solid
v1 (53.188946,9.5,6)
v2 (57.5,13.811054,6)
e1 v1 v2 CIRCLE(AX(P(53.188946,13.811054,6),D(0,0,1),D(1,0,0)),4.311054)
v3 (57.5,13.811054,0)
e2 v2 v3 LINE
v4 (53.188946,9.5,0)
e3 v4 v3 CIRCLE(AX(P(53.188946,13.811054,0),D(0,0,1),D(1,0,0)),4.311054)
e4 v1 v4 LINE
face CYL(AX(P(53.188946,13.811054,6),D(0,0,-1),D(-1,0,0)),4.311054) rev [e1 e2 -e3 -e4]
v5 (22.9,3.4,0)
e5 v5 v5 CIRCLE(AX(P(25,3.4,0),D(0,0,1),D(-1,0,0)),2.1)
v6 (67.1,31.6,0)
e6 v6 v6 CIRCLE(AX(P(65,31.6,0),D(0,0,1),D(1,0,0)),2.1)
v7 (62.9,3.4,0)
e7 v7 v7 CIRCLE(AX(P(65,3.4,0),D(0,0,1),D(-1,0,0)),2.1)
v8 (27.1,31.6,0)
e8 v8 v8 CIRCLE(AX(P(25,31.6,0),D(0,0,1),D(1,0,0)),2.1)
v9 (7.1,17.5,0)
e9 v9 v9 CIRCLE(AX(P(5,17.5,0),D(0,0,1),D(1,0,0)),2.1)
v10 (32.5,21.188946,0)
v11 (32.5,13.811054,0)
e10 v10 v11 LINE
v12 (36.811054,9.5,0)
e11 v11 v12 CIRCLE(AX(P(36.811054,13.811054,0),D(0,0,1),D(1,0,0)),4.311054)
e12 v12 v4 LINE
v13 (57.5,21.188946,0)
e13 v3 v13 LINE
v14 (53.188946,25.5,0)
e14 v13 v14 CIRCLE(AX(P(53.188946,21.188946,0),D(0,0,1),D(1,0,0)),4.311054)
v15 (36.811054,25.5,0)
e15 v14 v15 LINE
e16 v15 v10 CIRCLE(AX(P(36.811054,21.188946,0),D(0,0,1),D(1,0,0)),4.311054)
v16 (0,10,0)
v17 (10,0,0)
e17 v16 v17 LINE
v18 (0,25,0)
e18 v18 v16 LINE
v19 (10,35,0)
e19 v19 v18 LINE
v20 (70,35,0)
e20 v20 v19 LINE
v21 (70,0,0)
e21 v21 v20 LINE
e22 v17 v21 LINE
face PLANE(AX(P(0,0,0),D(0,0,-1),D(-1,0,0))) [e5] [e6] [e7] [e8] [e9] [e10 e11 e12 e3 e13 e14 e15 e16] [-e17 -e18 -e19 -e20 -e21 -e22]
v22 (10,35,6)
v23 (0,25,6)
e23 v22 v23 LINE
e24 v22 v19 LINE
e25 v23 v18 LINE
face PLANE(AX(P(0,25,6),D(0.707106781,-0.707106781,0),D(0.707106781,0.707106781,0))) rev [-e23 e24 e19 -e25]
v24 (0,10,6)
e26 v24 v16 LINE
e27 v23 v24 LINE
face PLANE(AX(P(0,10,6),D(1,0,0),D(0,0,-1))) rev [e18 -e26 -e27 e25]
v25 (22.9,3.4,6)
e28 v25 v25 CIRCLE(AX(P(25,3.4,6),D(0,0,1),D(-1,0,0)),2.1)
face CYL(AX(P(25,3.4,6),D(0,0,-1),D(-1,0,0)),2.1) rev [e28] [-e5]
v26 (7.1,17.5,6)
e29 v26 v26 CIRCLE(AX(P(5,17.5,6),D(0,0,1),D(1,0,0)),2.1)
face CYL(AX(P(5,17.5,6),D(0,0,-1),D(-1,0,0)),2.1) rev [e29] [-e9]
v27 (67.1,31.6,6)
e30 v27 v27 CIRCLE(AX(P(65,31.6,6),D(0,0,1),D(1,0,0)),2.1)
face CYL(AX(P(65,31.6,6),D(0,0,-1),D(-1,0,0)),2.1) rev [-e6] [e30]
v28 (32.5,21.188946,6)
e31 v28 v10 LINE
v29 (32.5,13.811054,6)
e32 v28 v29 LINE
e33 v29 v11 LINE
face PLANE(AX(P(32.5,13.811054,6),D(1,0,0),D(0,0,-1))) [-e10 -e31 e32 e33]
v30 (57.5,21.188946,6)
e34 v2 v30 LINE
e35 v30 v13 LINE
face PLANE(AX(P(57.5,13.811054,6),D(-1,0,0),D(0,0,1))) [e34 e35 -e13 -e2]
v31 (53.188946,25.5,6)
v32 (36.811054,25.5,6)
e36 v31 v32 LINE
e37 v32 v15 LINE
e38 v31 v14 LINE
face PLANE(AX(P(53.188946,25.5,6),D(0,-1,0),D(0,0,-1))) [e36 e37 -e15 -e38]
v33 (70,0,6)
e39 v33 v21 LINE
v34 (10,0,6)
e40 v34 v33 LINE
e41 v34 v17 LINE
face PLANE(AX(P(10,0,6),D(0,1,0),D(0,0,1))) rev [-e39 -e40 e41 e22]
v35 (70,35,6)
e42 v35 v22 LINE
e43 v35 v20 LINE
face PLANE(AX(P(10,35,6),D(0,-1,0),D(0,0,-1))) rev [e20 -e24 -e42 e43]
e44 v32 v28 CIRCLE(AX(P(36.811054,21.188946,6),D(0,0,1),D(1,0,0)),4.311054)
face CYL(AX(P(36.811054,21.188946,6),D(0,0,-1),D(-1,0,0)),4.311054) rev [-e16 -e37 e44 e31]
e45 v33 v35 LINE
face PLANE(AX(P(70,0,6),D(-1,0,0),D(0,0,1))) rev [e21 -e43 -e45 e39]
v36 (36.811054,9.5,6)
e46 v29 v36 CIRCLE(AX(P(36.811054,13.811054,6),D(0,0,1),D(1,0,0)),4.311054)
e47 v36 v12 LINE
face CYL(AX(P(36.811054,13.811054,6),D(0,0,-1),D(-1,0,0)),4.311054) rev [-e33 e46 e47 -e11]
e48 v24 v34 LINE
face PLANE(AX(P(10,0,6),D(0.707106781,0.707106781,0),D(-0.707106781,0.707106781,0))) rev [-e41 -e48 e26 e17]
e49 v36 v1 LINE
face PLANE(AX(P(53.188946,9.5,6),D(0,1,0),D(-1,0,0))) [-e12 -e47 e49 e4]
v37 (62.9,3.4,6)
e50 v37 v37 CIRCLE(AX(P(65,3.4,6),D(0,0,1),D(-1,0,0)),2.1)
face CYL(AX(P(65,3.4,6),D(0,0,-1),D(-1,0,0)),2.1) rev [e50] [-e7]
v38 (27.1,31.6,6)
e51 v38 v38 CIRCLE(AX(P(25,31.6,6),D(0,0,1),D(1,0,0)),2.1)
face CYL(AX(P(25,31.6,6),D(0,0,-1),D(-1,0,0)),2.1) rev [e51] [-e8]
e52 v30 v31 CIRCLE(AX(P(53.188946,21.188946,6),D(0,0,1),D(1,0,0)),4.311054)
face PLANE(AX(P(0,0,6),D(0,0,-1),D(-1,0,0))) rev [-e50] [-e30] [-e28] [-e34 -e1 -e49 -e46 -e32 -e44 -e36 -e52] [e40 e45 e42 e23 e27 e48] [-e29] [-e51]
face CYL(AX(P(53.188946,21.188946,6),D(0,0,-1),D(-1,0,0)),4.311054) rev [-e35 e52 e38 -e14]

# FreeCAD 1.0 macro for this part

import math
import FreeCAD as App
import Part
import Sketcher

V = App.Vector
Q = App.Units.Quantity

doc = App.newDocument("Part")
body = doc.addObject("PartDesign::Body", "Body")

# Sketch on XY plane
sketch1 = body.newObject("Sketcher::SketchObject", "Sketch")
sketch1.AttachmentSupport = (doc.getObject("XY_Plane"), [""])
sketch1.MapMode = "FlatFace"
sketch1.addGeometry(Part.LineSegment(V(10, 0, 0), V(70, 0, 0)), False)
sketch1.addGeometry(Part.LineSegment(V(70, 0, 0), V(70, 35, 0)), False)
sketch1.addGeometry(Part.LineSegment(V(70, 35, 0), V(10, 35, 0)), False)
sketch1.addGeometry(Part.LineSegment(V(10, 35, 0), V(0, 25, 0)), False)
sketch1.addGeometry(Part.LineSegment(V(0, 25, 0), V(0, 10, 0)), False)
sketch1.addGeometry(Part.LineSegment(V(0, 10, 0), V(10, 0, 0)), False)
sketch1.addGeometry(Part.Circle(V(25, 3.4, 0), V(0, 0, 1), 2.1), False)
sketch1.addGeometry(Part.Circle(V(65, 3.4, 0), V(0, 0, 1), 2.1), False)
sketch1.addGeometry(Part.Circle(V(5, 17.5, 0), V(0, 0, 1), 2.1), False)
sketch1.addGeometry(Part.Circle(V(25, 31.6, 0), V(0, 0, 1), 2.1), False)
sketch1.addGeometry(Part.ArcOfCircle(Part.Circle(V(53.2, 13.8, 0), V(0, 0, 1), 4.3), math.radians(-90), math.radians(0)), False)
sketch1.addGeometry(Part.LineSegment(V(53.2, 9.5, 0), V(36.8, 9.5, 0)), False)
sketch1.addGeometry(Part.ArcOfCircle(Part.Circle(V(36.8, 13.8, 0), V(0, 0, 1), 4.3), math.radians(180), math.radians(270)), False)
sketch1.addGeometry(Part.LineSegment(V(32.5, 13.8, 0), V(32.5, 21.2, 0)), False)
sketch1.addGeometry(Part.ArcOfCircle(Part.Circle(V(36.8, 21.2, 0), V(0, 0, 1), 4.3), math.radians(90), math.radians(180)), False)
sketch1.addGeometry(Part.LineSegment(V(36.8, 25.5, 0), V(53.2, 25.5, 0)), False)
sketch1.addGeometry(Part.ArcOfCircle(Part.Circle(V(53.2, 21.2, 0), V(0, 0, 1), 4.3), math.radians(0), math.radians(90)), False)
sketch1.addGeometry(Part.LineSegment(V(57.5, 21.2, 0), V(57.5, 13.8, 0)), False)
sketch1.addGeometry(Part.Circle(V(65, 31.6, 0), V(0, 0, 1), 2.1), False)
sketch1.addConstraint(Sketcher.Constraint("Coincident", 0, 2, 1, 1))
sketch1.addConstraint(Sketcher.Constraint("Coincident", 1, 2, 2, 1))
sketch1.addConstraint(Sketcher.Constraint("Coincident", 2, 2, 3, 1))
sketch1.addConstraint(Sketcher.Constraint("Coincident", 3, 2, 4, 1))
sketch1.addConstraint(Sketcher.Constraint("Coincident", 4, 2, 5, 1))
sketch1.addConstraint(Sketcher.Constraint("Coincident", 5, 2, 0, 1))
sketch1.addConstraint(Sketcher.Constraint("Tangent", 10, 1, 11, 1))
sketch1.addConstraint(Sketcher.Constraint("Tangent", 11, 2, 12, 2))
sketch1.addConstraint(Sketcher.Constraint("Tangent", 12, 1, 13, 1))
sketch1.addConstraint(Sketcher.Constraint("Tangent", 13, 2, 14, 2))
sketch1.addConstraint(Sketcher.Constraint("Tangent", 14, 1, 15, 1))
sketch1.addConstraint(Sketcher.Constraint("Tangent", 15, 2, 16, 2))
sketch1.addConstraint(Sketcher.Constraint("Tangent", 16, 1, 17, 1))
sketch1.addConstraint(Sketcher.Constraint("Tangent", 17, 2, 10, 2))
sketch1.addConstraint(Sketcher.Constraint("Horizontal", 0))
sketch1.addConstraint(Sketcher.Constraint("Vertical", 1))
sketch1.addConstraint(Sketcher.Constraint("Horizontal", 2))
sketch1.addConstraint(Sketcher.Constraint("Vertical", 4))
sketch1.addConstraint(Sketcher.Constraint("Horizontal", 11))
sketch1.addConstraint(Sketcher.Constraint("Vertical", 13))
sketch1.addConstraint(Sketcher.Constraint("Horizontal", 15))
sketch1.addConstraint(Sketcher.Constraint("Vertical", 17))
sketch1.addConstraint(Sketcher.Constraint("Equal", 6, 7))
sketch1.addConstraint(Sketcher.Constraint("Equal", 7, 8))
sketch1.addConstraint(Sketcher.Constraint("Equal", 8, 9))
sketch1.addConstraint(Sketcher.Constraint("Equal", 10, 12))
sketch1.addConstraint(Sketcher.Constraint("Equal", 12, 14))
sketch1.addConstraint(Sketcher.Constraint("Equal", 14, 16))
sketch1.addConstraint(Sketcher.Constraint("Equal", 9, 18))
sketch1.addConstraint(Sketcher.Constraint("PointOnObject", 0, 2, -1))
sketch1.addConstraint(Sketcher.Constraint("PointOnObject", 3, 2, -2))
sketch1.addConstraint(Sketcher.Constraint("Perpendicular", 3, 5))
sketch1.addConstraint(Sketcher.Constraint("Horizontal", 6, 3, 7, 3))
sketch1.addConstraint(Sketcher.Constraint("Horizontal", 9, 3, 18, 3))
sketch1.addConstraint(Sketcher.Constraint("Vertical", 6, 3, 9, 3))
sketch1.addConstraint(Sketcher.Constraint("Vertical", 7, 3, 18, 3))
sketch1.addConstraint(Sketcher.Constraint("Vertical", 2, 2, 5, 2))
sketch1.addConstraint(Sketcher.Constraint("Equal", 3, 5))
sketch1.addConstraint(Sketcher.Constraint("Diameter", 6, Q("4.2 mm")))
sketch1.addConstraint(Sketcher.Constraint("DistanceX", 0, 1, 0, 2, Q("60 mm")))
sketch1.addConstraint(Sketcher.Constraint("DistanceY", 1, 1, 1, 2, Q("35 mm")))
sketch1.addConstraint(Sketcher.Constraint("DistanceY", 4, 2, 4, 1, Q("15 mm")))
sketch1.addConstraint(Sketcher.Constraint("DistanceX", -1, 1, 6, 3, Q("25 mm")))
sketch1.addConstraint(Sketcher.Constraint("DistanceX", -1, 1, 7, 3, Q("65 mm")))
sketch1.addConstraint(Sketcher.Constraint("DistanceX", -1, 1, 8, 3, Q("5 mm")))
sketch1.addConstraint(Sketcher.Constraint("DistanceY", 10, 1, 15, 2, Q("16 mm")))
sketch1.addConstraint(Sketcher.Constraint("DistanceY", -1, 1, 6, 3, Q("3.4 mm")))
sketch1.addConstraint(Sketcher.Constraint("DistanceY", -1, 1, 8, 3, Q("17.5 mm")))
sketch1.addConstraint(Sketcher.Constraint("DistanceY", -1, 1, 9, 3, Q("31.6 mm")))
sketch1.addConstraint(Sketcher.Constraint("DistanceY", -1, 1, 10, 1, Q("9.5 mm")))
sketch1.addConstraint(Sketcher.Constraint("DistanceX", -1, 1, 12, 1, Q("32.5 mm")))
sketch1.addConstraint(Sketcher.Constraint("DistanceX", -1, 1, 16, 1, Q("57.5 mm")))
sketch1.addConstraint(Sketcher.Constraint("Radius", 10, Q("4.311054 mm")))
pad1 = body.newObject("PartDesign::Pad", "Pad")
pad1.Profile = sketch1
pad1.Length = 6

doc.recompute()
